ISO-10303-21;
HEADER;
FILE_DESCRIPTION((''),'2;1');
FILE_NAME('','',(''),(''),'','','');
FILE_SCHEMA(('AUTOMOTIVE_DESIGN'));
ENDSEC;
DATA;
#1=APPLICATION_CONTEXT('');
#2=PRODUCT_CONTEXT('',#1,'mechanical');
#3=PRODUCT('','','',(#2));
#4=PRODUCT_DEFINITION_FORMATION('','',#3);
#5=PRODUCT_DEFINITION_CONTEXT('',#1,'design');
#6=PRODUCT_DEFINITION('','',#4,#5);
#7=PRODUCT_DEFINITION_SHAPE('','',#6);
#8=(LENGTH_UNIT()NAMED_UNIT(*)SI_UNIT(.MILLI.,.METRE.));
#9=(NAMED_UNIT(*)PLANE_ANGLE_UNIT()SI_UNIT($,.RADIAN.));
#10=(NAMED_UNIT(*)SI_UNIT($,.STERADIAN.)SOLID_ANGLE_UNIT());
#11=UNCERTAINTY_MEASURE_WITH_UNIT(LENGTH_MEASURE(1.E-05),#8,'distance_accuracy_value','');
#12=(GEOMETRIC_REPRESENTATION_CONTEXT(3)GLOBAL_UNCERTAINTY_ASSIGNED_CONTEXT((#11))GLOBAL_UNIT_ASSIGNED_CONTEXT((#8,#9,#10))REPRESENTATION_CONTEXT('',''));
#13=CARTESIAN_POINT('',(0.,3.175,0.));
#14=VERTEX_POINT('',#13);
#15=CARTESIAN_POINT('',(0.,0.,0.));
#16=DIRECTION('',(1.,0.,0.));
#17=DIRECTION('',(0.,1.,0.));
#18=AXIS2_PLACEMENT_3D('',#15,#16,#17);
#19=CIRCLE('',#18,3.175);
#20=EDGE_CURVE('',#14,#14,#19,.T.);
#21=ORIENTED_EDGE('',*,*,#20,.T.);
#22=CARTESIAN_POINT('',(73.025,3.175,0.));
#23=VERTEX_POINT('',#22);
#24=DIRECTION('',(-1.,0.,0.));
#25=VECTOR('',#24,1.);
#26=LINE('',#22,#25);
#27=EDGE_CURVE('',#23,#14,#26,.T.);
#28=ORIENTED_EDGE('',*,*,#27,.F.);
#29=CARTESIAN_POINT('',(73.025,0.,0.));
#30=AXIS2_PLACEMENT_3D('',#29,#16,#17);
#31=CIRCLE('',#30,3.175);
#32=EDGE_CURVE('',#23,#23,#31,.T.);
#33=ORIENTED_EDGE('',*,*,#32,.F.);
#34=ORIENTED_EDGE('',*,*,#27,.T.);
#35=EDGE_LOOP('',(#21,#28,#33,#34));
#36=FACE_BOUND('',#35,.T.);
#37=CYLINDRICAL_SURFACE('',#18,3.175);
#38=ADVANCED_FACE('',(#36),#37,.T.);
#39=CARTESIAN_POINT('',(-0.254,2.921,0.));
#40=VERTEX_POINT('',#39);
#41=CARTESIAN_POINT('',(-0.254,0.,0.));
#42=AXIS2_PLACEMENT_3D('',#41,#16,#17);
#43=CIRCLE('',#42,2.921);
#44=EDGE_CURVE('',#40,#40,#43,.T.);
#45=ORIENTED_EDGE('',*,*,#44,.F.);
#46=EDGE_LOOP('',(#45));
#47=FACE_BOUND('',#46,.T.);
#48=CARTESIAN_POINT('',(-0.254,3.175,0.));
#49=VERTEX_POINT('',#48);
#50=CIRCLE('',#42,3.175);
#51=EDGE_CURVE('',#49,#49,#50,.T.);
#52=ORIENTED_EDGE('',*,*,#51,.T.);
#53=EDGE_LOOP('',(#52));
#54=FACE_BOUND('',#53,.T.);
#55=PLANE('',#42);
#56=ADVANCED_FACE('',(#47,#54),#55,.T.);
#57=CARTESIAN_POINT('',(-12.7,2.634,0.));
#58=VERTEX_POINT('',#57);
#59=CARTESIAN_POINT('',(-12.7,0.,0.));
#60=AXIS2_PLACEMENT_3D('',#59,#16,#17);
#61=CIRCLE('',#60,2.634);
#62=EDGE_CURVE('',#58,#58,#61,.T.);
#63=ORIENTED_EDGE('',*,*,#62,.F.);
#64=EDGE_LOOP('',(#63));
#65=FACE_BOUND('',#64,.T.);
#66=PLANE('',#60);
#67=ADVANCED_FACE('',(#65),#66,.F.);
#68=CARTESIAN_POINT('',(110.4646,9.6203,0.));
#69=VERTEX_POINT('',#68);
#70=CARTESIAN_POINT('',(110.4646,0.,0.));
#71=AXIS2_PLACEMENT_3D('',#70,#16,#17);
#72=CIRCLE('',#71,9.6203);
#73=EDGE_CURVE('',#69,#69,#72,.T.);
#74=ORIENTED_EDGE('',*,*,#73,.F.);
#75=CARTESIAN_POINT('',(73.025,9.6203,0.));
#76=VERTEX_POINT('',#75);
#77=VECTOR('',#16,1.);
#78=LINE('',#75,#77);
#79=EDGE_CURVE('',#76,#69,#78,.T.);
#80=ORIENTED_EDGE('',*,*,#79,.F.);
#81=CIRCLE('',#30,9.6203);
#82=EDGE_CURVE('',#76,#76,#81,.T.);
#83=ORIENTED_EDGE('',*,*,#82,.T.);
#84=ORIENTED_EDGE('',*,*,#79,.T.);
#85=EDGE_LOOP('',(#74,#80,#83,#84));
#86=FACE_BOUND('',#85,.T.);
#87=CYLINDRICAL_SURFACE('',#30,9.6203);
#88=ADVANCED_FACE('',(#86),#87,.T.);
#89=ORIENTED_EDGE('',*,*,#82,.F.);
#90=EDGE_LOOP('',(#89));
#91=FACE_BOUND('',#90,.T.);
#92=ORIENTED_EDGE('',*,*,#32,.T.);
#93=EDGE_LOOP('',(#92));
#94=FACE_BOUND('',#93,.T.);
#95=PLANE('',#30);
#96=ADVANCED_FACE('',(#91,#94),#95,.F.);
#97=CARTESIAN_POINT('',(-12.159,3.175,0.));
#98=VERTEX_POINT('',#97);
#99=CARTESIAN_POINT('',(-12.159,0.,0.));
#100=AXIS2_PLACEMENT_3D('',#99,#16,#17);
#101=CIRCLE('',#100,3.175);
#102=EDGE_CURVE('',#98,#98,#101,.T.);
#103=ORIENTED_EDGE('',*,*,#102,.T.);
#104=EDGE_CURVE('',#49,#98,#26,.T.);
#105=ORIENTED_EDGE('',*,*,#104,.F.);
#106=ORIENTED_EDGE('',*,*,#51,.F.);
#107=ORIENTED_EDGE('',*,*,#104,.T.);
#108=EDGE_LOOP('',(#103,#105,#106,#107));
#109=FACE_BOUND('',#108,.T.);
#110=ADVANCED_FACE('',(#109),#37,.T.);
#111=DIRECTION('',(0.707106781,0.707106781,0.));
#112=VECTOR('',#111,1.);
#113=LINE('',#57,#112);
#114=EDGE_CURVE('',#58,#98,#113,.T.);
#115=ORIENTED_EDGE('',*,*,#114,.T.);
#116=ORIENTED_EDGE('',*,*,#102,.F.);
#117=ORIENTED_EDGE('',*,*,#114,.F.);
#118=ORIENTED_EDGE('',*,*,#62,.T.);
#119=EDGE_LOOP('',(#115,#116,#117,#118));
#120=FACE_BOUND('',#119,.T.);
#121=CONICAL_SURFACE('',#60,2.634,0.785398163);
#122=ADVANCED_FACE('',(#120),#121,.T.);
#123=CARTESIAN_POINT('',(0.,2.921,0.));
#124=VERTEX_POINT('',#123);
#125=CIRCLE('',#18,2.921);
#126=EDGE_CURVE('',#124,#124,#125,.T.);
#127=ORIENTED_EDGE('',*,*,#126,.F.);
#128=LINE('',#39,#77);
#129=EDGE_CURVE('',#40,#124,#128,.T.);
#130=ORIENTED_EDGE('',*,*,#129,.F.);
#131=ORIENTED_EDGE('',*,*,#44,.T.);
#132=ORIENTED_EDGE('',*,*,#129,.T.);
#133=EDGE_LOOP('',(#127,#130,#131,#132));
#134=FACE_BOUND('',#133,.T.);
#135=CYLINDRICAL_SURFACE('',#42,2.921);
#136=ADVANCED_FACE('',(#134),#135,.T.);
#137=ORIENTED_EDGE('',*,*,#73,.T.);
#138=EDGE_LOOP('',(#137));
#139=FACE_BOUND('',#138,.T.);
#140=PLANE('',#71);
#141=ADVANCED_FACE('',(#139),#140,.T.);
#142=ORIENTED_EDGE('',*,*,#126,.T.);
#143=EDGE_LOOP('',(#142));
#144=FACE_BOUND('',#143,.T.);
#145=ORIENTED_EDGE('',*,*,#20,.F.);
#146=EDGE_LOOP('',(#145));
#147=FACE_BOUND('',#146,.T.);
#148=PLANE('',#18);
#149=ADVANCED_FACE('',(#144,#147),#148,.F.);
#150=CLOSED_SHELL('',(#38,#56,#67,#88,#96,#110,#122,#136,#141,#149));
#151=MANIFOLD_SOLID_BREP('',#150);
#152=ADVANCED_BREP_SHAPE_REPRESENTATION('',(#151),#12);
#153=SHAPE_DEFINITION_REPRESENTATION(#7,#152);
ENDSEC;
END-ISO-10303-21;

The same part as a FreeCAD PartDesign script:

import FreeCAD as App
import Part
import Sketcher

V = App.Vector
Q = App.Units.Quantity

doc = App.newDocument("Part")
body = doc.addObject("PartDesign::Body", "Body")

# Sketch on XY plane
sketch1 = doc.addObject("Sketcher::SketchObject", "Sketch")
body.addObject(sketch1)
sketch1.AttachmentSupport = (doc.XY_Plane, [""])
sketch1.MapMode = "FlatFace"
sketch1.addGeometry(Part.LineSegment(V(0, 0, 0), V(110.5, 0, 0)), False)
sketch1.addGeometry(Part.LineSegment(V(110.5, 0, 0), V(110.5, 9.6, 0)), False)
sketch1.addGeometry(Part.LineSegment(V(110.5, 9.6, 0), V(73, 9.6, 0)), False)
sketch1.addGeometry(Part.LineSegment(V(73, 9.6, 0), V(73, 3.2, 0)), False)
sketch1.addGeometry(Part.LineSegment(V(73, 3.2, 0), V(0, 3.2, 0)), False)
sketch1.addGeometry(Part.LineSegment(V(0, 3.2, 0), V(0, 0, 0)), False)
sketch1.addConstraint(Sketcher.Constraint("Coincident", 0, 2, 1, 1))
sketch1.addConstraint(Sketcher.Constraint("Coincident", 1, 2, 2, 1))
sketch1.addConstraint(Sketcher.Constraint("Coincident", 2, 2, 3, 1))
sketch1.addConstraint(Sketcher.Constraint("Coincident", 3, 2, 4, 1))
sketch1.addConstraint(Sketcher.Constraint("Coincident", 4, 2, 5, 1))
sketch1.addConstraint(Sketcher.Constraint("Coincident", 5, 2, 0, 1))
sketch1.addConstraint(Sketcher.Constraint("Horizontal", 0))
sketch1.addConstraint(Sketcher.Constraint("Vertical", 1))
sketch1.addConstraint(Sketcher.Constraint("Horizontal", 2))
sketch1.addConstraint(Sketcher.Constraint("Vertical", 3))
sketch1.addConstraint(Sketcher.Constraint("Horizontal", 4))
sketch1.addConstraint(Sketcher.Constraint("Vertical", 5))
sketch1.addConstraint(Sketcher.Constraint("Coincident", 5, 2, -1, 1))
sketch1.addConstraint(Sketcher.Constraint("DistanceX", 0, 1, 0, 2, Q("4.349 in")))
sketch1.addConstraint(Sketcher.Constraint("DistanceX", 2, 2, 2, 1, Q("1.474 in")))
sketch1.addConstraint(Sketcher.Constraint("DistanceY", 5, 2, 5, 1, Q("0.125 in")))
sketch1.addConstraint(Sketcher.Constraint("DistanceY", 1, 1, 1, 2, 9.6203))
revolution = doc.addObject("PartDesign::Revolution", "Revolution")
body.addObject(revolution)
revolution.Profile = sketch1
revolution.ReferenceAxis = (sketch1, ["H_Axis"])
revolution.Angle = 360

# Sketch on XY plane
sketch2 = doc.addObject("Sketcher::SketchObject", "Sketch001")
body.addObject(sketch2)
sketch2.AttachmentSupport = (doc.XY_Plane, [""])
sketch2.MapMode = "FlatFace"
sketch2.addGeometry(Part.LineSegment(V(-12.7, 0, 0), V(0, 0, 0)), False)
sketch2.addGeometry(Part.LineSegment(V(0, 0, 0), V(0, 3.2, 0)), False)
sketch2.addGeometry(Part.LineSegment(V(0, 3.2, 0), V(-12.2, 3.2, 0)), False)
sketch2.addGeometry(Part.LineSegment(V(-12.2, 3.2, 0), V(-12.7, 2.6, 0)), False)
sketch2.addGeometry(Part.LineSegment(V(-12.7, 2.6, 0), V(-12.7, 0, 0)), False)
sketch2.addConstraint(Sketcher.Constraint("Coincident", 0, 2, 1, 1))
sketch2.addConstraint(Sketcher.Constraint("Coincident", 1, 2, 2, 1))
sketch2.addConstraint(Sketcher.Constraint("Coincident", 2, 2, 3, 1))
sketch2.addConstraint(Sketcher.Constraint("Coincident", 3, 2, 4, 1))
sketch2.addConstraint(Sketcher.Constraint("Coincident", 4, 2, 0, 1))
sketch2.addConstraint(Sketcher.Constraint("Horizontal", 0))
sketch2.addConstraint(Sketcher.Constraint("Vertical", 1))
sketch2.addConstraint(Sketcher.Constraint("Horizontal", 2))
sketch2.addConstraint(Sketcher.Constraint("Vertical", 4))
sketch2.addConstraint(Sketcher.Constraint("Coincident", 0, 2, -1, 1))
sketch2.addConstraint(Sketcher.Constraint("DistanceX", 0, 1, 0, 2, Q("0.5 in")))
sketch2.addConstraint(Sketcher.Constraint("Angle", 3, Q("-135 deg")))
sketch2.addConstraint(Sketcher.Constraint("DistanceY", 1, 1, 1, 2, Q("0.125 in")))
sketch2.addConstraint(Sketcher.Constraint("DistanceX", 2, 2, 2, 1, Q("0.4787 in")))
revolution2 = doc.addObject("PartDesign::Revolution", "Revolution001")
body.addObject(revolution2)
revolution2.Profile = sketch2
revolution2.ReferenceAxis = (sketch2, ["H_Axis"])
revolution2.Angle = 360

# Sketch on XY plane
sketch3 = doc.addObject("Sketcher::SketchObject", "Sketch002")
body.addObject(sketch3)
sketch3.AttachmentSupport = (doc.XY_Plane, [""])
sketch3.MapMode = "FlatFace"
sketch3.addGeometry(Part.LineSegment(V(0, 3.43, 0), V(-0.25, 3.43, 0)), False)
sketch3.addGeometry(Part.LineSegment(V(-0.25, 3.43, 0), V(-0.25, 2.92, 0)), False)
sketch3.addGeometry(Part.LineSegment(V(-0.25, 2.92, 0), V(0, 2.92, 0)), False)
sketch3.addGeometry(Part.LineSegment(V(0, 2.92, 0), V(0, 3.43, 0)), False)
sketch3.addConstraint(Sketcher.Constraint("Coincident", 0, 2, 1, 1))
sketch3.addConstraint(Sketcher.Constraint("Coincident", 1, 2, 2, 1))
sketch3.addConstraint(Sketcher.Constraint("Coincident", 2, 2, 3, 1))
sketch3.addConstraint(Sketcher.Constraint("Coincident", 3, 2, 0, 1))
sketch3.addConstraint(Sketcher.Constraint("Horizontal", 0))
sketch3.addConstraint(Sketcher.Constraint("Vertical", 1))
sketch3.addConstraint(Sketcher.Constraint("Horizontal", 2))
sketch3.addConstraint(Sketcher.Constraint("Vertical", 3))
sketch3.addConstraint(Sketcher.Constraint("PointOnObject", 2, 2, -2))
sketch3.addConstraint(Sketcher.Constraint("DistanceX", 0, 2, 0, 1, Q("0.01 in")))
sketch3.addConstraint(Sketcher.Constraint("DistanceY", 1, 2, 1, 1, Q("0.02 in")))
sketch3.addConstraint(Sketcher.Constraint("DistanceY", -1, 1, 0, 2, Q("0.135 in")))
groove = doc.addObject("PartDesign::Groove", "Groove")
body.addObject(groove)
groove.Profile = sketch3
groove.ReferenceAxis = (sketch3, ["H_Axis"])
groove.Angle = 360

doc.recompute()
